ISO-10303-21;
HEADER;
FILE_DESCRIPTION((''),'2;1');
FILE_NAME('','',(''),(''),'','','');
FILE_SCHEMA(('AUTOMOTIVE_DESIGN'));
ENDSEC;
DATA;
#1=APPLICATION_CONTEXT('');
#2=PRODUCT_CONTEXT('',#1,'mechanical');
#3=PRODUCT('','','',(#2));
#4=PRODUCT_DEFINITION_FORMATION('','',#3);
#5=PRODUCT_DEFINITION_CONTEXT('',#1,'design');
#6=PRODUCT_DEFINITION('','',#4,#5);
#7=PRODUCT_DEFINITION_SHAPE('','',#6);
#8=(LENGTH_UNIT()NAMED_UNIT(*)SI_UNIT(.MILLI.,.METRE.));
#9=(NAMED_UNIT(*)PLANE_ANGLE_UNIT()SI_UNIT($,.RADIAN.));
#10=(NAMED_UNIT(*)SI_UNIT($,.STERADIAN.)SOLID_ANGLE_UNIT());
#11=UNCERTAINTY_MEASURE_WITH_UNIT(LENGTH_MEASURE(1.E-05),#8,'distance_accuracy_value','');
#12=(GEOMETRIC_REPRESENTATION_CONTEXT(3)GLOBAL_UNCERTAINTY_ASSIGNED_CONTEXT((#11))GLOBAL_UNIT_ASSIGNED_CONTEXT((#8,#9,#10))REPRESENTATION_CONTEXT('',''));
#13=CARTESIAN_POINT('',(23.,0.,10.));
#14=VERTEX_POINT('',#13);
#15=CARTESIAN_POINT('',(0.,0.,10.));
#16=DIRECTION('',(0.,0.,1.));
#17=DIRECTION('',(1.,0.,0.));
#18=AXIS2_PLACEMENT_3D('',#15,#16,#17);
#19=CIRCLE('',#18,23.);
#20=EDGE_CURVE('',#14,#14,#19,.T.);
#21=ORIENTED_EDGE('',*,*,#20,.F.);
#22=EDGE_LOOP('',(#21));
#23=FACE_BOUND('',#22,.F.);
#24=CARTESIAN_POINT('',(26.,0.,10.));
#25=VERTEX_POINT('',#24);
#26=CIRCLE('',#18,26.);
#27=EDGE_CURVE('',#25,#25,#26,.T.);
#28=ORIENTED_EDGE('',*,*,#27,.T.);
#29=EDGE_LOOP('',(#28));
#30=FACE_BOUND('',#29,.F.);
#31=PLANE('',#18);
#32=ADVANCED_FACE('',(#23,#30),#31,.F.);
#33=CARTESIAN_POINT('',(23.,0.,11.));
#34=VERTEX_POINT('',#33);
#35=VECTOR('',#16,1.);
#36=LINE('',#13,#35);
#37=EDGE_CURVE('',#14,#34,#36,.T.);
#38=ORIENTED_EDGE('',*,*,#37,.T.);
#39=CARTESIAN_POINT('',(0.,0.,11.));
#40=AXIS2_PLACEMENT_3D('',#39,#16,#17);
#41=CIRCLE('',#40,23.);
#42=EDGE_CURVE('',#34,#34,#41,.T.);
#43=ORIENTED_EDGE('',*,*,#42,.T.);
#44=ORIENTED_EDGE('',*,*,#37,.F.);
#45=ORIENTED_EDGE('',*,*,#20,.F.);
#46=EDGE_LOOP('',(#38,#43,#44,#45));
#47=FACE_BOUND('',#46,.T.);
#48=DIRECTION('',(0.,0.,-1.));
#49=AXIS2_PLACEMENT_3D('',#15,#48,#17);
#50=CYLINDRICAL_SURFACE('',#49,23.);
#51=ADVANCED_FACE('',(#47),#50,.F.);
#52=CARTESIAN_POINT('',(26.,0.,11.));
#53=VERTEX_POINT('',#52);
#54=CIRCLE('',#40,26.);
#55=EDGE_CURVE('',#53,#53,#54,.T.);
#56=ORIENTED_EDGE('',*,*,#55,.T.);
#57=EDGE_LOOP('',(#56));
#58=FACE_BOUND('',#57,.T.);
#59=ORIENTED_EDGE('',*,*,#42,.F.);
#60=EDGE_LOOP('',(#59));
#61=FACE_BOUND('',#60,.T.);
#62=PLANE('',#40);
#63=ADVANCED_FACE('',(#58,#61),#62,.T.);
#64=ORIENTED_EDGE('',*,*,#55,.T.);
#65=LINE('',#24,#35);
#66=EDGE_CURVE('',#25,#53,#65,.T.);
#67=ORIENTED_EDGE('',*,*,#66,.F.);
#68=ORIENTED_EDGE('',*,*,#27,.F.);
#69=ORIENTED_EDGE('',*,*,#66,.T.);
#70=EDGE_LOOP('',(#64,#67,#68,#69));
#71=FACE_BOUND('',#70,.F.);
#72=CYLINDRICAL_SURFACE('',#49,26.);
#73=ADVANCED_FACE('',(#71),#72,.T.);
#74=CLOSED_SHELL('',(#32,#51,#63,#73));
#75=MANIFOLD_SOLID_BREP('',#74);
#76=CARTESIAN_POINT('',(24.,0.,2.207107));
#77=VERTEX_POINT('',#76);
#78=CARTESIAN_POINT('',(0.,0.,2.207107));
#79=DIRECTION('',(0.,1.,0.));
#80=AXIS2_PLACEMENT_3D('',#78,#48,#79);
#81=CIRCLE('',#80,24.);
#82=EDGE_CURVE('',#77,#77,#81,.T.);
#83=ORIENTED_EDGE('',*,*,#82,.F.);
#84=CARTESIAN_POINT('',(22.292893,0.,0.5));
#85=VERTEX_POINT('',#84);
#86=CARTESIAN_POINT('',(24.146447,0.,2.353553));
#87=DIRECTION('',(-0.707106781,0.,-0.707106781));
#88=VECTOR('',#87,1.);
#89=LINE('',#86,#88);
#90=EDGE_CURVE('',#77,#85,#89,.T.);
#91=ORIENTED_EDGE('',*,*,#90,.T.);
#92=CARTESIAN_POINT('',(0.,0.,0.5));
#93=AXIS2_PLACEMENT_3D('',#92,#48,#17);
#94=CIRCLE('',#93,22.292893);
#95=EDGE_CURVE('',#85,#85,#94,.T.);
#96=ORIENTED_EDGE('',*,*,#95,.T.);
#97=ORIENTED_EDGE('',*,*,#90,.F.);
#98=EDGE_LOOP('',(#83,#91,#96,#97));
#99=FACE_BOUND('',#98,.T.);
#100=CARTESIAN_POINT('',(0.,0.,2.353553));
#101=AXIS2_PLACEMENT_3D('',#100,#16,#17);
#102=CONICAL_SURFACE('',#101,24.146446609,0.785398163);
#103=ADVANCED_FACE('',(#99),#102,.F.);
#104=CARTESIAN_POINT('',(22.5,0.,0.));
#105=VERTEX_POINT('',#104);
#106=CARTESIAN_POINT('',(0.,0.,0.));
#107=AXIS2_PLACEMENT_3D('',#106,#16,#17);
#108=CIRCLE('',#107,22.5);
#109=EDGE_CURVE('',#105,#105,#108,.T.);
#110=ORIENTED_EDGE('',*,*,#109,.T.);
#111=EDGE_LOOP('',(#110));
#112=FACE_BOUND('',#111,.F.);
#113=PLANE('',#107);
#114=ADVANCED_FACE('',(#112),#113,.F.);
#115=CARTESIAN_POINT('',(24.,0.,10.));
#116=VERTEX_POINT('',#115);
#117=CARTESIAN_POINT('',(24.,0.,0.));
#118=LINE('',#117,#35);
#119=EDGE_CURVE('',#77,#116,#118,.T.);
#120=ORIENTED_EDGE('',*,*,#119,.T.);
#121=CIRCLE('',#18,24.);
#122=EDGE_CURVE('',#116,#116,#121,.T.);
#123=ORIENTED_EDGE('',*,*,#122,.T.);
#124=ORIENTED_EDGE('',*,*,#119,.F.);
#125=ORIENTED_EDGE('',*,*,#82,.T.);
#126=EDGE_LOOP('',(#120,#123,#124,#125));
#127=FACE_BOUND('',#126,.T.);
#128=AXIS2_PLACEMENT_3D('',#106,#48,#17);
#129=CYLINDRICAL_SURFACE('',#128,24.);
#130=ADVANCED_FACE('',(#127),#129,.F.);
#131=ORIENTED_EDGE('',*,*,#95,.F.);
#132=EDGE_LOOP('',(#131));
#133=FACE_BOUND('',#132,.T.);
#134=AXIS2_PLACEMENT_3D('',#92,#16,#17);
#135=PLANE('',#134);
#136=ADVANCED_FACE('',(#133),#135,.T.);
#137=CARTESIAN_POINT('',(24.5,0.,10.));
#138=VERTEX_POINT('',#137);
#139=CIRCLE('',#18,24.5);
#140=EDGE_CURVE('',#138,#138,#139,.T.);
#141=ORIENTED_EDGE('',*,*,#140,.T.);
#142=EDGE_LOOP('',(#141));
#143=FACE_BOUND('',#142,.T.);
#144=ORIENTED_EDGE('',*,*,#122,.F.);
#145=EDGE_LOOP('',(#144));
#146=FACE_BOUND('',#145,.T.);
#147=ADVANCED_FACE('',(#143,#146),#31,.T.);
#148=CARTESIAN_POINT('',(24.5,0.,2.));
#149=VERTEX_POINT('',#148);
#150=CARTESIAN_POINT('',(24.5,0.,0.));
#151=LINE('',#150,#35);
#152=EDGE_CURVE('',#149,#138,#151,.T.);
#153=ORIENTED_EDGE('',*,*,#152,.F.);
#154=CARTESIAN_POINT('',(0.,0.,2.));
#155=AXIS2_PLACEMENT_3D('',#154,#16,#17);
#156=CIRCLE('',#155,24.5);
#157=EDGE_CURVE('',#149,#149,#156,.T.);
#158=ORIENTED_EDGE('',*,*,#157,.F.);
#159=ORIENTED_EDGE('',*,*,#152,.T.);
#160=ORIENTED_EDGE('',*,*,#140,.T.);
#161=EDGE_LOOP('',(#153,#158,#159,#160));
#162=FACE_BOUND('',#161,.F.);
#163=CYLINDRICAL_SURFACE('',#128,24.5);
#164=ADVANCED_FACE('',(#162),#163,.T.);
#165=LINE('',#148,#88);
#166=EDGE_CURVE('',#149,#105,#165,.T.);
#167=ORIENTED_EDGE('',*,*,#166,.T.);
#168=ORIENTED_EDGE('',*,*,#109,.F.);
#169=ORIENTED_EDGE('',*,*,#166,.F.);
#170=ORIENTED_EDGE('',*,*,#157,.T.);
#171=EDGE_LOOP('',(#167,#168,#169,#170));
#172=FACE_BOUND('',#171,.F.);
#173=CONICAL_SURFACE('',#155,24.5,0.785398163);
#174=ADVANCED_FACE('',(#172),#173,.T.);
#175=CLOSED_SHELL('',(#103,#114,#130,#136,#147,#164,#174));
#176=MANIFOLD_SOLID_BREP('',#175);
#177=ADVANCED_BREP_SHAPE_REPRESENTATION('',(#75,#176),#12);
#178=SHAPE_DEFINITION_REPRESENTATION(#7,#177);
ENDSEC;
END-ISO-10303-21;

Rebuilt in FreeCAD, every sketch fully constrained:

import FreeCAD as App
import Part
import Sketcher
Q = App.Units.Quantity


def edges_at(feature, points):
    """Names of the edges that pass closest to the given points."""
    edges = feature.Shape.Edges
    near = lambda p: min(range(len(edges)), key=lambda i: edges[i].distToShape(Part.Vertex(*p))[0])
    return sorted({f"Edge{near(p) + 1}" for p in points})


def faces_at(feature, points):
    """Names of the faces that lie closest to the given points."""
    faces = feature.Shape.Faces
    near = lambda p: min(range(len(faces)), key=lambda i: faces[i].distToShape(Part.Vertex(*p))[0])
    return sorted({f"Face{near(p) + 1}" for p in points})

doc = App.newDocument("Part")
body = doc.addObject("PartDesign::Body", "Body")

# Sketch on XY plane
sketch1 = body.newObject("Sketcher::SketchObject", "Sketch")
sketch1.AttachmentSupport = (doc.getObject("XY_Plane"), [""])
sketch1.MapMode = "FlatFace"
sketch1.AttachmentOffset = App.Placement(App.Vector(0, 0, 10), App.Rotation())
sketch1.addGeometry(Part.Circle(App.Vector(0, 0, 0), App.Vector(0, 0, 1), 26), False)
sketch1.addGeometry(Part.Circle(App.Vector(0, 0, 0), App.Vector(0, 0, 1), 23), False)
sketch1.addConstraint(Sketcher.Constraint("Coincident", 0, 3, -1, 1))
sketch1.addConstraint(Sketcher.Constraint("Coincident", 1, 3, -1, 1))
sketch1.addConstraint(Sketcher.Constraint("Diameter", 0, Q("52 mm")))
sketch1.addConstraint(Sketcher.Constraint("Diameter", 1, Q("46 mm")))
pad1 = body.newObject("PartDesign::Pad", "Pad")
pad1.Profile = sketch1
pad1.Length = 1
body2 = doc.addObject("PartDesign::Body", "Body001")

# Sketch on XY plane
sketch2 = body2.newObject("Sketcher::SketchObject", "Sketch001")
sketch2.AttachmentSupport = (doc.getObject("XY_Plane001"), [""])
sketch2.MapMode = "FlatFace"
sketch2.addGeometry(Part.Circle(App.Vector(0, 0, 0), App.Vector(0, 0, 1), 24), False)
sketch2.addConstraint(Sketcher.Constraint("Coincident", 0, 3, -1, 1))
sketch2.addConstraint(Sketcher.Constraint("Diameter", 0, Q("49 mm")))
pad2 = body2.newObject("PartDesign::Pad", "Pad001")
pad2.Profile = sketch2
pad2.Length = 10
doc.recompute()

chamfer = body2.newObject("PartDesign::Chamfer", "Chamfer")
chamfer.Base = (pad2, edges_at(pad2, [(-24.5, 0, 0)]))
chamfer.Size = 2
doc.recompute()

thickness = body2.newObject("PartDesign::Thickness", "Thickness")
thickness.Base = (chamfer, faces_at(chamfer, [(0, 0, 10)]))
thickness.Value = 0.5
thickness.Reversed = True
thickness.Join = "Arc"

doc.recompute()
